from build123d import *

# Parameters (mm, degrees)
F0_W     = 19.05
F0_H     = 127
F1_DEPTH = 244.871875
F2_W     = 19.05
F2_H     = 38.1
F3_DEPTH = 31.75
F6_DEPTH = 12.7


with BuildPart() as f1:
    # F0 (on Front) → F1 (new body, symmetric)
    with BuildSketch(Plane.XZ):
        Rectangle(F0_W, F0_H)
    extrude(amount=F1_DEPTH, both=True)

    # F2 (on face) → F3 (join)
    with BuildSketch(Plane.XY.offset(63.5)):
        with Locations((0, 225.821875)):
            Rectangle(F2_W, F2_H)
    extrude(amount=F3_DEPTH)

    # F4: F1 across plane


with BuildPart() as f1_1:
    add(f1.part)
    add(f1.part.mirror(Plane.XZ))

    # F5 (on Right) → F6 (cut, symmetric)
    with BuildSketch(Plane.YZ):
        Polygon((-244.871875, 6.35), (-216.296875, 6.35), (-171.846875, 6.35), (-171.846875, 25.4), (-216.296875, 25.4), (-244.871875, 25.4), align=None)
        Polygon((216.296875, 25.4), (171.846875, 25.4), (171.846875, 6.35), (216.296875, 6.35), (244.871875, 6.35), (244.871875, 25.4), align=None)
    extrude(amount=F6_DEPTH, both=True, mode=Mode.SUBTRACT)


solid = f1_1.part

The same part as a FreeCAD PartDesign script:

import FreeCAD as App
import Part
import Sketcher

V = App.Vector
Q = App.Units.Quantity


def add_polygon(sketch, points):
    """Adds a closed chain of lines whose ends are joined by coincident constraints."""
    first, n = sketch.GeometryCount, len(points)
    for a, b in zip(points, points[1:] + points[:1]):
        sketch.addGeometry(Part.LineSegment(App.Vector(*a, 0), App.Vector(*b, 0)), False)
    for i in range(n):
        sketch.addConstraint(Sketcher.Constraint("Coincident", first + i, 2, first + (i + 1) % n, 1))

doc = App.newDocument("Part")
body = doc.addObject("PartDesign::Body", "Body")

# Sketch on XZ plane
sketch1 = body.newObject("Sketcher::SketchObject", "Sketch")
sketch1.AttachmentSupport = (doc.getObject("XZ_Plane"), [""])
sketch1.MapMode = "FlatFace"
add_polygon(sketch1, [(-10, 64), (-10, -64), (10, -64), (10, 64)])  # lines 0-3
sketch1.addConstraint(Sketcher.Constraint("Vertical", 0))
sketch1.addConstraint(Sketcher.Constraint("Horizontal", 1))
sketch1.addConstraint(Sketcher.Constraint("Vertical", 2))
sketch1.addConstraint(Sketcher.Constraint("Horizontal", 3))
sketch1.addConstraint(Sketcher.Constraint("Symmetric", 0, 2, 2, 2, -1, 1))
sketch1.addConstraint(Sketcher.Constraint("DistanceY", 0, 2, 0, 1, Q("5 in")))
sketch1.addConstraint(Sketcher.Constraint("DistanceX", 1, 1, 1, 2, Q("0.75 in")))
pad1 = body.newObject("PartDesign::Pad", "Pad")
pad1.Profile = sketch1
pad1.Length = Q("19.28125 in")
pad1.Midplane = True

# Sketch on XY plane
sketch2 = body.newObject("Sketcher::SketchObject", "Sketch001")
sketch2.AttachmentSupport = (doc.getObject("XY_Plane"), [""])
sketch2.MapMode = "FlatFace"
sketch2.AttachmentOffset = App.Placement(V(0, 0, 2.5 * 25.4), App.Rotation())
add_polygon(sketch2, [(-10, 245), (-10, 207), (10, 207), (10, 245)])  # lines 0-3
sketch2.addConstraint(Sketcher.Constraint("Vertical", 0))
sketch2.addConstraint(Sketcher.Constraint("Horizontal", 1))
sketch2.addConstraint(Sketcher.Constraint("Vertical", 2))
sketch2.addConstraint(Sketcher.Constraint("Horizontal", 3))
sketch2.addConstraint(Sketcher.Constraint("DistanceY", 0, 2, 0, 1, Q("1.5 in")))
sketch2.addConstraint(Sketcher.Constraint("DistanceX", 1, 1, 1, 2, Q("0.75 in")))
sketch2.addConstraint(Sketcher.Constraint("DistanceX", 0, 2, -1, 1, Q("0.375 in")))
sketch2.addConstraint(Sketcher.Constraint("DistanceY", -1, 1, 0, 2, Q("8.140625 in")))
pad2 = body.newObject("PartDesign::Pad", "Pad001")
pad2.Profile = sketch2
pad2.Length = Q("1.25 in")
body2 = doc.addObject("PartDesign::Body", "Body001")
doc.recompute()

body2.BaseFeature = body
doc.recompute()

mirroring = doc.addObject("Part::Mirroring", "Mirroring")
mirroring.Source = body
mirroring.Base = V(0, 0, 0)
mirroring.Normal = V(0, -1, 0)
body3 = doc.addObject("PartDesign::Body", "Body002")
body3.BaseFeature = mirroring
boolean = body2.newObject("PartDesign::Boolean", "Boolean")
boolean.Type = "Fuse"
boolean.addObjects([body3])
doc.recompute()

# Sketch on YZ plane
sketch3 = body2.newObject("Sketcher::SketchObject", "Sketch002")
sketch3.AttachmentSupport = (doc.getObject("YZ_Plane001"), [""])
sketch3.MapMode = "FlatFace"
add_polygon(sketch3, [(-245, 6), (-172, 6), (-172, 25), (-245, 25)])  # lines 0-3
add_polygon(sketch3, [(172, 25), (172, 6), (245, 6), (245, 25)])  # lines 4-7
sketch3.addConstraint(Sketcher.Constraint("Horizontal", 0))
sketch3.addConstraint(Sketcher.Constraint("Vertical", 1))
sketch3.addConstraint(Sketcher.Constraint("Horizontal", 2))
sketch3.addConstraint(Sketcher.Constraint("Vertical", 3))
sketch3.addConstraint(Sketcher.Constraint("Vertical", 4))
sketch3.addConstraint(Sketcher.Constraint("Horizontal", 5))
sketch3.addConstraint(Sketcher.Constraint("Vertical", 6))
sketch3.addConstraint(Sketcher.Constraint("Horizontal", 7))
sketch3.addConstraint(Sketcher.Constraint("Symmetric", 0, 2, 4, 2, -2))
sketch3.addConstraint(Sketcher.Constraint("Symmetric", 2, 2, 6, 2, -2))
sketch3.addConstraint(Sketcher.Constraint("DistanceY", -1, 1, 1, 2, Q("1 in")))
sketch3.addConstraint(Sketcher.Constraint("DistanceY", 1, 1, 1, 2, Q("0.75 in")))
sketch3.addConstraint(Sketcher.Constraint("DistanceX", 0, 1, 0, 2, Q("2.875 in")))
sketch3.addConstraint(Sketcher.Constraint("DistanceX", 0, 2, -1, 1, Q("6.765625 in")))
pocket1 = body2.newObject("PartDesign::Pocket", "Pocket")
pocket1.Profile = sketch3
pocket1.Length = Q("1 in")
pocket1.Midplane = True
mirroring.Visibility = False

doc.recompute()
